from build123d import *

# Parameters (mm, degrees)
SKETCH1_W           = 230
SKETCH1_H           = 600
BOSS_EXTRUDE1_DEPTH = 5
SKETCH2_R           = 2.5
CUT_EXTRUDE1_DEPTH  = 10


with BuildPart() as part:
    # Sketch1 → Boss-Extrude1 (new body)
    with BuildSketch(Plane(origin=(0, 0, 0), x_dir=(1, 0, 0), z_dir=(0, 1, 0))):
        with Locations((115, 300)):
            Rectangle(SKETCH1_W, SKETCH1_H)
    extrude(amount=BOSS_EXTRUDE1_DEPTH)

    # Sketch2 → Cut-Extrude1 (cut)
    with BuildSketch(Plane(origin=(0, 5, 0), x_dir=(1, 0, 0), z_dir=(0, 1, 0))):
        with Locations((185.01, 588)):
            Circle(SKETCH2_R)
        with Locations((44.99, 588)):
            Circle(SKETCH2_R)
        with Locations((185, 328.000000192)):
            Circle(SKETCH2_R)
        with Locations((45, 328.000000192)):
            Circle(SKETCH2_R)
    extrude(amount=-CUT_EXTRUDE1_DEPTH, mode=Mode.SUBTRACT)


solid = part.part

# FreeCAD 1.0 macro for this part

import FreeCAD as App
import Part
import Sketcher

V = App.Vector
Q = App.Units.Quantity


def add_polygon(sketch, points):
    """Adds a closed chain of lines whose ends are joined by coincident constraints."""
    first, n = sketch.GeometryCount, len(points)
    for a, b in zip(points, points[1:] + points[:1]):
        sketch.addGeometry(Part.LineSegment(App.Vector(*a, 0), App.Vector(*b, 0)), False)
    for i in range(n):
        sketch.addConstraint(Sketcher.Constraint("Coincident", first + i, 2, first + (i + 1) % n, 1))

doc = App.newDocument("Part")
body = doc.addObject("PartDesign::Body", "Body")

# Sketch on XZ plane
sketch1 = body.newObject("Sketcher::SketchObject", "Sketch")
sketch1.AttachmentSupport = (doc.getObject("XZ_Plane"), [""])
sketch1.MapMode = "FlatFace"
add_polygon(sketch1, [(0, -600), (0, 0), (230, 0), (230, -600)])  # lines 0-3
sketch1.addConstraint([
    Sketcher.Constraint("Vertical", 0),
    Sketcher.Constraint("Horizontal", 1),
    Sketcher.Constraint("Vertical", 2),
    Sketcher.Constraint("Horizontal", 3),
    Sketcher.Constraint("Coincident", 0, 2, -1, 1),
    Sketcher.Constraint("DistanceX", 1, 1, 1, 2, Q("230 mm")),
    Sketcher.Constraint("DistanceY", 0, 1, 0, 2, Q("600 mm")),
])
pad1 = body.newObject("PartDesign::Pad", "Pad")
pad1.Profile = sketch1
pad1.Length = 5
pad1.Reversed = True

# Sketch on XZ plane
sketch2 = body.newObject("Sketcher::SketchObject", "Sketch001")
sketch2.AttachmentSupport = (doc.getObject("XZ_Plane"), [""])
sketch2.MapMode = "FlatFace"
sketch2.AttachmentOffset = App.Placement(V(0, 0, -5), App.Rotation())
sketch2.addGeometry([
    Part.Circle(V(185, -588, 0), V(0, 0, 1), 2.5),
    Part.Circle(V(45, -588, 0), V(0, 0, 1), 2.5),
    Part.Circle(V(185, -328, 0), V(0, 0, 1), 2.5),
    Part.Circle(V(45, -328, 0), V(0, 0, 1), 2.5),
], False)
sketch2.addConstraint([
    Sketcher.Constraint("Equal", 0, 1),
    Sketcher.Constraint("Equal", 1, 2),
    Sketcher.Constraint("Equal", 2, 3),
    Sketcher.Constraint("Horizontal", 0, 3, 1, 3),
    Sketcher.Constraint("Horizontal", 2, 3, 3, 3),
    Sketcher.Constraint("Diameter", 0, Q("5 mm")),
    Sketcher.Constraint("DistanceY", 0, 3, -1, 1, Q("588 mm")),
    Sketcher.Constraint("DistanceX", -1, 1, 2, 3, Q("185 mm")),
    Sketcher.Constraint("DistanceY", 2, 3, -1, 1, Q("328 mm")),
    Sketcher.Constraint("DistanceX", -1, 1, 3, 3, Q("45 mm")),
    Sketcher.Constraint("DistanceX", -1, 1, 0, 3, Q("185.01 mm")),
    Sketcher.Constraint("DistanceX", -1, 1, 1, 3, Q("44.99 mm")),
])
pocket1 = body.newObject("PartDesign::Pocket", "Pocket")
pocket1.Profile = sketch2
pocket1.Length = 10
pocket1.Reversed = True

doc.recompute()
